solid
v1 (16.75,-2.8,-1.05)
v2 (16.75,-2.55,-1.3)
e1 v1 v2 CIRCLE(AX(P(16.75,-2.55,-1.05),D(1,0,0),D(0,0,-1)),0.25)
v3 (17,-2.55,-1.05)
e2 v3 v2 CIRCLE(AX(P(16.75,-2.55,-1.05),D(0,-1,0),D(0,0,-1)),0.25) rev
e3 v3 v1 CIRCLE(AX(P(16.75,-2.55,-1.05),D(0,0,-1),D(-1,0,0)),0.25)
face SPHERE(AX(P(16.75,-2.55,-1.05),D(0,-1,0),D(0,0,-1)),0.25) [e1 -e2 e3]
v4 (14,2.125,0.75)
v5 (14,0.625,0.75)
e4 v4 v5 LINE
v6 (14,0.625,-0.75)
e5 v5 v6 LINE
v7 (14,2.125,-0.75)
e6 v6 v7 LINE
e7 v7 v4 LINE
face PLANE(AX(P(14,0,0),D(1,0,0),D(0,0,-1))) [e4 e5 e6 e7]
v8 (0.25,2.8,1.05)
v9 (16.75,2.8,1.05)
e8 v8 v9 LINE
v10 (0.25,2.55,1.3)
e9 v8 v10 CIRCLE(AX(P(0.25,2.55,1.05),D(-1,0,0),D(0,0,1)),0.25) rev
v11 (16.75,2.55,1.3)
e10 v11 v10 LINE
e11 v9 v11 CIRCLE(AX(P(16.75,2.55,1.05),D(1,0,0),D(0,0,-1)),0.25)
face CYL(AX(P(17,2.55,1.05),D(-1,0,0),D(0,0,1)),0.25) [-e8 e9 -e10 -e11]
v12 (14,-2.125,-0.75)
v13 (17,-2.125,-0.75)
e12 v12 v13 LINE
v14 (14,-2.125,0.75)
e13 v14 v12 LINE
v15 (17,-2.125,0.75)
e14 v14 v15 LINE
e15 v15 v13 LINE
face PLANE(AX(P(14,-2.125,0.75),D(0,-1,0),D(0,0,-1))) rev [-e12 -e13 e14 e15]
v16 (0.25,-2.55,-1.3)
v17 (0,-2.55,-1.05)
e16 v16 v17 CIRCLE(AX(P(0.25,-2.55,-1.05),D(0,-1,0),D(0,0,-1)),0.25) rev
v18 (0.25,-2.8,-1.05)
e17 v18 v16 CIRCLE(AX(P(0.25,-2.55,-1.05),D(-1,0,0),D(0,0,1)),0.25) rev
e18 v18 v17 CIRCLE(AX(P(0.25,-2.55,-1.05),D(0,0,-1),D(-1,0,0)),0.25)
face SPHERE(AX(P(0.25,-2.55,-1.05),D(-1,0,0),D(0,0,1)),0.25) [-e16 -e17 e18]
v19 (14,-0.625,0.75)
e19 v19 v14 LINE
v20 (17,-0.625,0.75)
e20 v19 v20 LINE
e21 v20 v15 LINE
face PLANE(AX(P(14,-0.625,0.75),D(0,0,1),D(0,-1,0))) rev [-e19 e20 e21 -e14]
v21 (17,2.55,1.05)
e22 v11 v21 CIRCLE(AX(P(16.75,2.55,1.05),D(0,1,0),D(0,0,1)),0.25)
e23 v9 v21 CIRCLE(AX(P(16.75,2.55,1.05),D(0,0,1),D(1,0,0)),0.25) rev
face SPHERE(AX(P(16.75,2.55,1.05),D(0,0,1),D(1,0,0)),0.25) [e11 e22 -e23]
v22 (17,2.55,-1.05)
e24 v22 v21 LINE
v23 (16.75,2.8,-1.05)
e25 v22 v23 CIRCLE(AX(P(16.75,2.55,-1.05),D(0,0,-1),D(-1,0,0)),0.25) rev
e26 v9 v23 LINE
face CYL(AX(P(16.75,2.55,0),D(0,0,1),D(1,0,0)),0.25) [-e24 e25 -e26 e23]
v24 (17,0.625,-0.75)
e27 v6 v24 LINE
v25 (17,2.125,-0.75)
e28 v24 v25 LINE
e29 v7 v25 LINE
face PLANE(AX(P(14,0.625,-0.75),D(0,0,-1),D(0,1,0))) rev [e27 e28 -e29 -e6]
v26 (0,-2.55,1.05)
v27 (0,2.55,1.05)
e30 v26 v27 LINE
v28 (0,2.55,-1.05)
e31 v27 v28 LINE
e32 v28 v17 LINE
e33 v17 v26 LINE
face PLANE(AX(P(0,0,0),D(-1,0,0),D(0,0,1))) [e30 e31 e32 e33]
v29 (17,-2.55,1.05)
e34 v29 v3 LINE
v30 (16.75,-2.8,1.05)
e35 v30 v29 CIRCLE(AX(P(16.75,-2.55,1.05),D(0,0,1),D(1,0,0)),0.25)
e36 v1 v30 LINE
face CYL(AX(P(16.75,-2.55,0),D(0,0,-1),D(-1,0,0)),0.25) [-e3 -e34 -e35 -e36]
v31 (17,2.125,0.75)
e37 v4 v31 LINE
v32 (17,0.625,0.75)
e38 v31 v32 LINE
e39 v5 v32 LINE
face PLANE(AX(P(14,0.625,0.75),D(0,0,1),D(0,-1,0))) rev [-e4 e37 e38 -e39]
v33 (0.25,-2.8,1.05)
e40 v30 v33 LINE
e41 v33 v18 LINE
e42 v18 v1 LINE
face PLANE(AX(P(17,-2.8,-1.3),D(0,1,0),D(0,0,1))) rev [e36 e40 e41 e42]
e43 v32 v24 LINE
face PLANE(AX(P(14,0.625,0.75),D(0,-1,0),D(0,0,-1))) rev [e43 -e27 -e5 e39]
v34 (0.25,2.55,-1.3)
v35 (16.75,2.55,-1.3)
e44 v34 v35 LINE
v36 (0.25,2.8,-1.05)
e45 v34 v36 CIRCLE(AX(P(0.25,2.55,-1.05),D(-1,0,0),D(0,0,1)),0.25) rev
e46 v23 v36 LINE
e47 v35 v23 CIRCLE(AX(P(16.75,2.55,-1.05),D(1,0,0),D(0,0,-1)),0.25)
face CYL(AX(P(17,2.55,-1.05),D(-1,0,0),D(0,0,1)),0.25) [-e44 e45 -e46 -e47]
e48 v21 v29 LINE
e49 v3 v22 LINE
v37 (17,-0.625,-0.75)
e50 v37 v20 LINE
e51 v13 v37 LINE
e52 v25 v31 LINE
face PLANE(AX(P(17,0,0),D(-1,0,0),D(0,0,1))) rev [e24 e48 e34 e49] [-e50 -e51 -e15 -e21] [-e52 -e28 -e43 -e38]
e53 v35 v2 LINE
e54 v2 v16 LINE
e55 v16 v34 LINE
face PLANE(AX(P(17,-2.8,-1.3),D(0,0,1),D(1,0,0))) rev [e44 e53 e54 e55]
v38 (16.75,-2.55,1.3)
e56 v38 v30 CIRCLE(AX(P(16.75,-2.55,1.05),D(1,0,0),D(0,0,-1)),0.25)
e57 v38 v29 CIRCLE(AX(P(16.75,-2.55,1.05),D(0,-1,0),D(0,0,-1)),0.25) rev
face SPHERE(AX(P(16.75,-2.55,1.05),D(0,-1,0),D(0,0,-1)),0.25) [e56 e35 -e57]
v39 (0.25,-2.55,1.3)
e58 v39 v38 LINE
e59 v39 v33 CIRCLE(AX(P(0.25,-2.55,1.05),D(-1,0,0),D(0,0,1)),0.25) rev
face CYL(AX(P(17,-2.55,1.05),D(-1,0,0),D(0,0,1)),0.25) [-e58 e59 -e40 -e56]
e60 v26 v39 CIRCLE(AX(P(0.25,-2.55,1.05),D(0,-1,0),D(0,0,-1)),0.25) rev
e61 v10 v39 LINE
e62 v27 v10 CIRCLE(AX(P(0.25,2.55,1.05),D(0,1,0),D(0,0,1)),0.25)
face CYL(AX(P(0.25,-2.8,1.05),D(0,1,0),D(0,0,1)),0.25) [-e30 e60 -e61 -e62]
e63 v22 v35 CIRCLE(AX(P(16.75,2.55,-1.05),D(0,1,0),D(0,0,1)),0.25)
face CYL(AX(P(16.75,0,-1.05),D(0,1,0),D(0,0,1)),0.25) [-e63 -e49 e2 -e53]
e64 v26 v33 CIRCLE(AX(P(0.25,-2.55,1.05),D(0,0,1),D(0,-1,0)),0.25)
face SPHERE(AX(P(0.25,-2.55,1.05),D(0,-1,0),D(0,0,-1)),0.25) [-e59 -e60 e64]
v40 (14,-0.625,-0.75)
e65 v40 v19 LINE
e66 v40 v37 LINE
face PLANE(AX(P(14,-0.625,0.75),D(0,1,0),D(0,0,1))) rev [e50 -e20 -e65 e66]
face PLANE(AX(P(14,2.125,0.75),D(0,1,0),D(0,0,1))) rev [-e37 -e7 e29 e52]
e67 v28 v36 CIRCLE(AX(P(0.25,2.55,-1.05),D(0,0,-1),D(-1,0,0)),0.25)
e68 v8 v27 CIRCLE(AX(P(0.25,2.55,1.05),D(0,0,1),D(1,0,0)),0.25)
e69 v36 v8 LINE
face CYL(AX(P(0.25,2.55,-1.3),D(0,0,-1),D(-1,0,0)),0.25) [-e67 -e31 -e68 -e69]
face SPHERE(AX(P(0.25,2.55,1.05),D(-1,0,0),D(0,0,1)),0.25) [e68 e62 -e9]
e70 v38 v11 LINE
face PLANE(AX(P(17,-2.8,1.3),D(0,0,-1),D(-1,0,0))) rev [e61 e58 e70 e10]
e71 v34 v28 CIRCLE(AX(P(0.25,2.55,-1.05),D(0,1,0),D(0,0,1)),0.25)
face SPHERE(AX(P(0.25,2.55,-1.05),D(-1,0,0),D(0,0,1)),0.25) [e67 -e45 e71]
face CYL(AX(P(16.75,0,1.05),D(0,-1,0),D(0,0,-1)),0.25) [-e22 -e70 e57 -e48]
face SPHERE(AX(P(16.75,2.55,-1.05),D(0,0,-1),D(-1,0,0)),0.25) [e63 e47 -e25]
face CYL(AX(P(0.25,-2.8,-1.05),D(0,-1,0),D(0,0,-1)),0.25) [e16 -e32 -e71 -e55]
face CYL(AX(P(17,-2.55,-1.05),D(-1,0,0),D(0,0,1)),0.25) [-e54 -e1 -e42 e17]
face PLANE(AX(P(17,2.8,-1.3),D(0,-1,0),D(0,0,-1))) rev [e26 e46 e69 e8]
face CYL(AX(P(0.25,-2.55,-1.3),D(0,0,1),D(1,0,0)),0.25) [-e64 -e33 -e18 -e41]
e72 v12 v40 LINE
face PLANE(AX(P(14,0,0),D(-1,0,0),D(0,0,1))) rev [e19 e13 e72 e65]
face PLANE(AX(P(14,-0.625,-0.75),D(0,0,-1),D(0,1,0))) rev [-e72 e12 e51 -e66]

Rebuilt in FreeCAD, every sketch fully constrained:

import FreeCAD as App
import Part
import Sketcher
from FreeCAD import Vector
Q = App.Units.Quantity


def edges_at(feature, points):
    """Names of the edges that pass closest to the given points."""
    edges = feature.Shape.Edges
    near = lambda p: min(range(len(edges)), key=lambda i: edges[i].distToShape(Part.Vertex(*p))[0])
    return sorted({f"Edge{near(p) + 1}" for p in points})

doc = App.newDocument("Part")
body = doc.addObject("PartDesign::Body", "Body")

# Sketch on YZ plane
sketch1 = body.newObject("Sketcher::SketchObject", "Sketch")
sketch1.AttachmentSupport = (doc.getObject("YZ_Plane"), [""])
sketch1.MapMode = "FlatFace"
sketch1.addGeometry(Part.LineSegment(Vector(-2.8, 1.3, 0), Vector(-2.8, -1.3, 0)), False)
sketch1.addGeometry(Part.LineSegment(Vector(-2.8, -1.3, 0), Vector(2.8, -1.3, 0)), False)
sketch1.addGeometry(Part.LineSegment(Vector(2.8, -1.3, 0), Vector(2.8, 1.3, 0)), False)
sketch1.addGeometry(Part.LineSegment(Vector(2.8, 1.3, 0), Vector(-2.8, 1.3, 0)), False)
sketch1.addConstraint(Sketcher.Constraint("Coincident", 0, 2, 1, 1))
sketch1.addConstraint(Sketcher.Constraint("Coincident", 1, 2, 2, 1))
sketch1.addConstraint(Sketcher.Constraint("Coincident", 2, 2, 3, 1))
sketch1.addConstraint(Sketcher.Constraint("Coincident", 3, 2, 0, 1))
sketch1.addConstraint(Sketcher.Constraint("Vertical", 0))
sketch1.addConstraint(Sketcher.Constraint("Horizontal", 1))
sketch1.addConstraint(Sketcher.Constraint("Vertical", 2))
sketch1.addConstraint(Sketcher.Constraint("Horizontal", 3))
sketch1.addConstraint(Sketcher.Constraint("Symmetric", 0, 2, 2, 2, -1, 1))
sketch1.addConstraint(Sketcher.Constraint("DistanceX", 1, 1, 1, 2, Q("5.6 mm")))
sketch1.addConstraint(Sketcher.Constraint("DistanceY", 0, 2, 0, 1, Q("2.6 mm")))
pad1 = body.newObject("PartDesign::Pad", "Pad")
pad1.Profile = sketch1
pad1.Length = 17

# Sketch on YZ plane
sketch2 = body.newObject("Sketcher::SketchObject", "Sketch001")
sketch2.AttachmentSupport = (doc.getObject("YZ_Plane"), [""])
sketch2.MapMode = "FlatFace"
sketch2.AttachmentOffset = App.Placement(Vector(0, 0, 17), App.Rotation())
sketch2.addGeometry(Part.LineSegment(Vector(0.6, 0.8, 0), Vector(0.6, -0.8, 0)), False)
sketch2.addGeometry(Part.LineSegment(Vector(0.6, -0.8, 0), Vector(2.1, -0.8, 0)), False)
sketch2.addGeometry(Part.LineSegment(Vector(2.1, -0.8, 0), Vector(2.1, 0.8, 0)), False)
sketch2.addGeometry(Part.LineSegment(Vector(2.1, 0.8, 0), Vector(0.6, 0.8, 0)), False)
sketch2.addGeometry(Part.LineSegment(Vector(-2.1, 0.8, 0), Vector(-2.1, -0.8, 0)), False)
sketch2.addGeometry(Part.LineSegment(Vector(-2.1, -0.8, 0), Vector(-0.6, -0.8, 0)), False)
sketch2.addGeometry(Part.LineSegment(Vector(-0.6, -0.8, 0), Vector(-0.6, 0.8, 0)), False)
sketch2.addGeometry(Part.LineSegment(Vector(-0.6, 0.8, 0), Vector(-2.1, 0.8, 0)), False)
sketch2.addConstraint(Sketcher.Constraint("Coincident", 0, 2, 1, 1))
sketch2.addConstraint(Sketcher.Constraint("Coincident", 1, 2, 2, 1))
sketch2.addConstraint(Sketcher.Constraint("Coincident", 2, 2, 3, 1))
sketch2.addConstraint(Sketcher.Constraint("Coincident", 3, 2, 0, 1))
sketch2.addConstraint(Sketcher.Constraint("Coincident", 4, 2, 5, 1))
sketch2.addConstraint(Sketcher.Constraint("Coincident", 5, 2, 6, 1))
sketch2.addConstraint(Sketcher.Constraint("Coincident", 6, 2, 7, 1))
sketch2.addConstraint(Sketcher.Constraint("Coincident", 7, 2, 4, 1))
sketch2.addConstraint(Sketcher.Constraint("Vertical", 0))
sketch2.addConstraint(Sketcher.Constraint("Horizontal", 1))
sketch2.addConstraint(Sketcher.Constraint("Vertical", 2))
sketch2.addConstraint(Sketcher.Constraint("Horizontal", 3))
sketch2.addConstraint(Sketcher.Constraint("Vertical", 4))
sketch2.addConstraint(Sketcher.Constraint("Horizontal", 5))
sketch2.addConstraint(Sketcher.Constraint("Vertical", 6))
sketch2.addConstraint(Sketcher.Constraint("Horizontal", 7))
sketch2.addConstraint(Sketcher.Constraint("Symmetric", 2, 2, 4, 2, -1, 1))
sketch2.addConstraint(Sketcher.Constraint("Symmetric", 0, 2, 6, 2, -1, 1))
sketch2.addConstraint(Sketcher.Constraint("Horizontal", 1, 2, 4, 2))
sketch2.addConstraint(Sketcher.Constraint("Equal", 7, 0))
sketch2.addConstraint(Sketcher.Constraint("DistanceX", 1, 1, 1, 2, Q("1.5 mm")))
sketch2.addConstraint(Sketcher.Constraint("DistanceX", 4, 2, 0, 2, Q("2.75 mm")))
pocket1 = body.newObject("PartDesign::Pocket", "Pocket")
pocket1.Profile = sketch2
pocket1.Length = 3
doc.recompute()

fillet = body.newObject("PartDesign::Fillet", "Fillet")
fillet.Base = (pocket1, edges_at(pocket1, [
    (17, -2.8, 0),
    (17, 0, -1.3),
    (17, 2.8, 0),
    (0, 0, -1.3),
    (0, -2.8, 0),
    (0, 0, 1.3),
    (0, 2.8, 0),
    (8.5, 2.8, -1.3),
    (8.5, -2.8, -1.3),
    (8.5, -2.8, 1.3),
    (8.5, 2.8, 1.3),
    (17, 0, 1.3),
]))
fillet.Radius = 0.25

doc.recompute()
